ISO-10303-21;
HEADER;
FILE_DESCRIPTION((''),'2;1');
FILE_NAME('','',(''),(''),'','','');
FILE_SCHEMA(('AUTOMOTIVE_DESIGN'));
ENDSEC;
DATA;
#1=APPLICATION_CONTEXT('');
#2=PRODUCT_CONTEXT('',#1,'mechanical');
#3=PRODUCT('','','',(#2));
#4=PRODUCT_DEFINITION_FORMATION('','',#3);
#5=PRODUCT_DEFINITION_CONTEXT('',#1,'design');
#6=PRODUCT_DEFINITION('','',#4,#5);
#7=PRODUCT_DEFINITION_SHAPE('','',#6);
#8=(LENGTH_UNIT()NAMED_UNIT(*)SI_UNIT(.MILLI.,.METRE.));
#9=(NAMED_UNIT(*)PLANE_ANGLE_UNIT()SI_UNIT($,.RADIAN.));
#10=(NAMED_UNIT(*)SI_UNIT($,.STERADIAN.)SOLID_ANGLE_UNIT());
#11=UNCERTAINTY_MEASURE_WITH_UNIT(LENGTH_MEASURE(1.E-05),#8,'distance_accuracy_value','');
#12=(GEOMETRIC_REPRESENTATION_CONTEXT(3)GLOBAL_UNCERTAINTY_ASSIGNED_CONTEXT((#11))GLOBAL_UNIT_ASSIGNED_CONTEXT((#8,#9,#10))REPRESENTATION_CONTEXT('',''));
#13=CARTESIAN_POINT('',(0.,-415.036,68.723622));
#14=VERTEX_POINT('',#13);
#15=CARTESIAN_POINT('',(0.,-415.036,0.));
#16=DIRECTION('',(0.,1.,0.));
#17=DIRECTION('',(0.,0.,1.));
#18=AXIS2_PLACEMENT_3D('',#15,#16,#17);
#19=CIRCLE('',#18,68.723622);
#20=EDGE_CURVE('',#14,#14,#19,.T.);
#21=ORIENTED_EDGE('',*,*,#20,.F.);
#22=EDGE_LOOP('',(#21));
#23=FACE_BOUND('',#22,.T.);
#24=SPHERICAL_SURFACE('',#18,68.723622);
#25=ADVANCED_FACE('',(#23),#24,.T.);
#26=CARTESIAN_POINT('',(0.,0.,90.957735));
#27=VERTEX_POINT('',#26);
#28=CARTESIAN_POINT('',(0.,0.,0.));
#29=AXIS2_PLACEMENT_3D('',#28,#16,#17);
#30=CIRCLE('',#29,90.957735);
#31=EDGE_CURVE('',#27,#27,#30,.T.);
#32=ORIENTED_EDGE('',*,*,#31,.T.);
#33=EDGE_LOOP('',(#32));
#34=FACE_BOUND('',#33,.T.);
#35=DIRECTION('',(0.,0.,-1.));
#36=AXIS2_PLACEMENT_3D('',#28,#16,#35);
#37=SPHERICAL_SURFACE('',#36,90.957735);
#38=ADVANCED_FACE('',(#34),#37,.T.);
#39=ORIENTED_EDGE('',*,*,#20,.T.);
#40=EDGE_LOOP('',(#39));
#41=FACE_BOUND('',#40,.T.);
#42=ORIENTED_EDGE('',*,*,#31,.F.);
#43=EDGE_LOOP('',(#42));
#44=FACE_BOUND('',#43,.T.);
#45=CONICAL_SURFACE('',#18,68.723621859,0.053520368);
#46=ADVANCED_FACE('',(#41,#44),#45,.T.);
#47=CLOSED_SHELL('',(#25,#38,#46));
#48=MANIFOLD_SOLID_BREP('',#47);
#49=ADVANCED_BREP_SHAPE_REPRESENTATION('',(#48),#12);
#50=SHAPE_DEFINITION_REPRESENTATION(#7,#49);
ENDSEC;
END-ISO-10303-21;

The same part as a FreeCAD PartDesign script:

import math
import FreeCAD as App
import Part
import Sketcher

V = App.Vector
Q = App.Units.Quantity

doc = App.newDocument("Part")
body = doc.addObject("PartDesign::Body", "Body")

# Sketch on XZ plane
sketch1 = body.newObject("Sketcher::SketchObject", "Sketch")
sketch1.AttachmentSupport = (doc.getObject("XZ_Plane"), [""])
sketch1.MapMode = "FlatFace"
sketch1.addGeometry(Part.Circle(V(0, 0, 0), V(0, 0, 1), 91), False)
sketch1.addConstraint(Sketcher.Constraint("Coincident", 0, 3, -1, 1))
sketch1.addConstraint(Sketcher.Constraint("Diameter", 0, Q("181.91547 mm")))

# Sketch on XZ plane
sketch2 = body.newObject("Sketcher::SketchObject", "Sketch001")
sketch2.AttachmentSupport = (doc.getObject("XZ_Plane"), [""])
sketch2.MapMode = "FlatFace"
sketch2.AttachmentOffset = App.Placement(V(0, 0, 415.036), App.Rotation())
sketch2.addGeometry(Part.Circle(V(0, 0, 0), V(0, 0, 1), 69), False)
sketch2.addConstraint(Sketcher.Constraint("Coincident", 0, 3, -1, 1))
sketch2.addConstraint(Sketcher.Constraint("Diameter", 0, Q("137.447244 mm")))

additiveloft = body.newObject("PartDesign::AdditiveLoft", "AdditiveLoft")
additiveloft.Profile = sketch1
additiveloft.Sections = [sketch2]

# Sketch on YZ plane
sketch3 = body.newObject("Sketcher::SketchObject", "Sketch002")
sketch3.AttachmentSupport = (doc.getObject("YZ_Plane"), [""])
sketch3.MapMode = "FlatFace"
sketch3.addGeometry(Part.LineSegment(V(-484, 0, 0), V(-415, 0, 0)), False)
sketch3.addGeometry(Part.LineSegment(V(-415, 0, 0), V(-415, 69, 0)), False)
sketch3.addGeometry(Part.ArcOfCircle(Part.Circle(V(-415, 0, 0), V(0, 0, 1), 69), math.radians(90), math.radians(180)), False)
sketch3.addGeometry(Part.LineSegment(V(0, 0, 0), V(91, 0, 0)), False)
sketch3.addGeometry(Part.ArcOfCircle(Part.Circle(V(0, 0, 0), V(0, 0, 1), 91), math.radians(0), math.radians(90)), False)
sketch3.addGeometry(Part.LineSegment(V(0, 91, 0), V(0, 0, 0)), False)
sketch3.addConstraint(Sketcher.Constraint("Coincident", 0, 2, 1, 1))
sketch3.addConstraint(Sketcher.Constraint("Coincident", 1, 2, 2, 1))
sketch3.addConstraint(Sketcher.Constraint("Coincident", 2, 2, 0, 1))
sketch3.addConstraint(Sketcher.Constraint("Coincident", 3, 2, 4, 1))
sketch3.addConstraint(Sketcher.Constraint("Coincident", 4, 2, 5, 1))
sketch3.addConstraint(Sketcher.Constraint("Coincident", 5, 2, 3, 1))
sketch3.addConstraint(Sketcher.Constraint("Horizontal", 0))
sketch3.addConstraint(Sketcher.Constraint("Vertical", 1))
sketch3.addConstraint(Sketcher.Constraint("Horizontal", 3))
sketch3.addConstraint(Sketcher.Constraint("Vertical", 5))
sketch3.addConstraint(Sketcher.Constraint("Coincident", 4, 3, -1, 1))
sketch3.addConstraint(Sketcher.Constraint("Coincident", 5, 2, -1, 1))
sketch3.addConstraint(Sketcher.Constraint("Coincident", 0, 2, 2, 3))
sketch3.addConstraint(Sketcher.Constraint("PointOnObject", 2, 3, -1))
sketch3.addConstraint(Sketcher.Constraint("Radius", 2, Q("68.723622 mm")))
sketch3.addConstraint(Sketcher.Constraint("DistanceX", 2, 3, -1, 1, Q("415.036 mm")))
sketch3.addConstraint(Sketcher.Constraint("Radius", 4, Q("90.957735 mm")))
revolution = body.newObject("PartDesign::Revolution", "Revolution")
revolution.Profile = sketch3
revolution.ReferenceAxis = (sketch3, ["H_Axis"])
revolution.Angle = 360

doc.recompute()
